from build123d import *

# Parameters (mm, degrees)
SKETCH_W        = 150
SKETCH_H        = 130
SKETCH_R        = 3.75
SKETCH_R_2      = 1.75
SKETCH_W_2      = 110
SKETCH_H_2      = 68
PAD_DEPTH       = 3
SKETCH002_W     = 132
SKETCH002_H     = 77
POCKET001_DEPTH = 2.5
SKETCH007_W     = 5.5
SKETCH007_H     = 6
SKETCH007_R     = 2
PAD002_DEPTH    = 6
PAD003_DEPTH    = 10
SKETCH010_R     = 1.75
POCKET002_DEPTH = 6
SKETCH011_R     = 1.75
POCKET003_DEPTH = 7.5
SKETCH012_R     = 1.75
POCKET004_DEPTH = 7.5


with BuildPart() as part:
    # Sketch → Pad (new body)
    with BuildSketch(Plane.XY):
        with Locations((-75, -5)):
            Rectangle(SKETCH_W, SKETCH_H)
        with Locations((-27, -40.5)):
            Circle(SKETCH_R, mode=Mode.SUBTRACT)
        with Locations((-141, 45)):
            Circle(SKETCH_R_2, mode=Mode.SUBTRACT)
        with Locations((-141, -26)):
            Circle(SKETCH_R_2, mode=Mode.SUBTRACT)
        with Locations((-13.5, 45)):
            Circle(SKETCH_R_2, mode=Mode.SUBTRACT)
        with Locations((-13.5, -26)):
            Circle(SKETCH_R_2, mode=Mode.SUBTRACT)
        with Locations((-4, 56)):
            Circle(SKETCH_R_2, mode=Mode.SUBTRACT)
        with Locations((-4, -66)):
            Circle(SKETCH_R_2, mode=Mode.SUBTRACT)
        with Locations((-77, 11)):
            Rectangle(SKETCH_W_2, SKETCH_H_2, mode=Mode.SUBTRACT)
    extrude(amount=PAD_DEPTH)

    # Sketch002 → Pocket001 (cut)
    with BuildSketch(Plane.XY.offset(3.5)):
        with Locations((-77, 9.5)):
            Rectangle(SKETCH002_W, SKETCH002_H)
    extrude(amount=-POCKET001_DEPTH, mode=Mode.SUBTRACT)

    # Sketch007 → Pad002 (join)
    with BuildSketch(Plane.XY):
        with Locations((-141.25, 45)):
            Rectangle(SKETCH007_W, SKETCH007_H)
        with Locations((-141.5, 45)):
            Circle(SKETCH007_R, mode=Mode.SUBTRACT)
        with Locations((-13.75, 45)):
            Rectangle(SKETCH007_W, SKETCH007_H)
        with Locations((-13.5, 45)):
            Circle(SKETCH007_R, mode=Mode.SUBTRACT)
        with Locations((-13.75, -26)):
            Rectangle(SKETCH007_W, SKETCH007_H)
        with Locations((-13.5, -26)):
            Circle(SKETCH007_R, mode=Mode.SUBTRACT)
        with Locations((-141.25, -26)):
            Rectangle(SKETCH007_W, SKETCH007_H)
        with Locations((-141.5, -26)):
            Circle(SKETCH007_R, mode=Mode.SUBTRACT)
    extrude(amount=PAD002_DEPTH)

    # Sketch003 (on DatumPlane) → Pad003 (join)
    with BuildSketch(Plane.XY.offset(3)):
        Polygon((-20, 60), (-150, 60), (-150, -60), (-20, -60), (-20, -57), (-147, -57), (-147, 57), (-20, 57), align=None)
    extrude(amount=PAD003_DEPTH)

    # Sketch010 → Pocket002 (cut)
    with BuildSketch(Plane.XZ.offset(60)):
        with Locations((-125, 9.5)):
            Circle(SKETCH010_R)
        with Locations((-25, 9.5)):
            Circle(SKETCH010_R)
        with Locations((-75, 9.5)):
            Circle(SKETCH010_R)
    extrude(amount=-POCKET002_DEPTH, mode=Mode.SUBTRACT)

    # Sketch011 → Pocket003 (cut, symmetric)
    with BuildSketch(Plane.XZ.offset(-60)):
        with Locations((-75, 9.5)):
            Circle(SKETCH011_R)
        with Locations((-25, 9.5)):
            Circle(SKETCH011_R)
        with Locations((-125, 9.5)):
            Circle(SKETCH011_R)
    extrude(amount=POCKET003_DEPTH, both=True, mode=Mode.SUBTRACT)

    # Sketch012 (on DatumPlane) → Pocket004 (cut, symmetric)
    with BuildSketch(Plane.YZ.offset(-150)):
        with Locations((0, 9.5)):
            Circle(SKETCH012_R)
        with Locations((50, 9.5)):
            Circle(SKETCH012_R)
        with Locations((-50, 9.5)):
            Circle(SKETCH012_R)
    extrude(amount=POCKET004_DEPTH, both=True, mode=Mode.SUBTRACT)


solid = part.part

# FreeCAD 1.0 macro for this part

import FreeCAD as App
import Part
import Sketcher
from FreeCAD import Vector

doc = App.newDocument("Part")
body = doc.addObject("PartDesign::Body", "Body")

# Sketch on XY plane
sketch1 = doc.addObject("Sketcher::SketchObject", "Sketch")
body.addObject(sketch1)
sketch1.AttachmentSupport = (doc.XY_Plane, [""])
sketch1.MapMode = "FlatFace"
sketch1.addGeometry([
    Part.LineSegment(Vector(-150, 60, 0), Vector(-150, -70, 0)),  # 0
    Part.LineSegment(Vector(-150, -70, 0), Vector(0, -70, 0)),  # 1
    Part.LineSegment(Vector(0, -70, 0), Vector(0, 60, 0)),  # 2
    Part.LineSegment(Vector(0, 60, 0), Vector(-150, 60, 0)),  # 3
    Part.Circle(Vector(-141, -26, 0), Vector(0, 0, 1), 1.8),  # 4
    Part.Circle(Vector(-4, -66, 0), Vector(0, 0, 1), 1.8),  # 5
    Part.Circle(Vector(-27, -40.5, 0), Vector(0, 0, 1), 3.8),  # 6
    Part.Circle(Vector(-13.5, -26, 0), Vector(0, 0, 1), 1.8),  # 7
    Part.LineSegment(Vector(-22, -23, 0), Vector(-132, -23, 0)),  # 8
    Part.LineSegment(Vector(-132, -23, 0), Vector(-132, 45, 0)),  # 9
    Part.LineSegment(Vector(-132, 45, 0), Vector(-22, 45, 0)),  # 10
    Part.LineSegment(Vector(-22, 45, 0), Vector(-22, -23, 0)),  # 11
    Part.Circle(Vector(-141, 45, 0), Vector(0, 0, 1), 1.8),  # 12
    Part.Circle(Vector(-13.5, 45, 0), Vector(0, 0, 1), 1.8),  # 13
    Part.Circle(Vector(-4, 56, 0), Vector(0, 0, 1), 1.8),  # 14
], False)
sketch1.addConstraint([
    Sketcher.Constraint("Coincident", 0, 2, 1, 1),
    Sketcher.Constraint("Coincident", 1, 2, 2, 1),
    Sketcher.Constraint("Coincident", 2, 2, 3, 1),
    Sketcher.Constraint("Coincident", 3, 2, 0, 1),
    Sketcher.Constraint("Coincident", 8, 2, 9, 1),
    Sketcher.Constraint("Coincident", 9, 2, 10, 1),
    Sketcher.Constraint("Coincident", 10, 2, 11, 1),
    Sketcher.Constraint("Coincident", 11, 2, 8, 1),
    Sketcher.Constraint("Vertical", 0),
    Sketcher.Constraint("Horizontal", 1),
    Sketcher.Constraint("Vertical", 2),
    Sketcher.Constraint("Horizontal", 3),
    Sketcher.Constraint("Horizontal", 8),
    Sketcher.Constraint("Vertical", 9),
    Sketcher.Constraint("Horizontal", 10),
    Sketcher.Constraint("Vertical", 11),
    Sketcher.Constraint("Equal", 4, 5),
    Sketcher.Constraint("Equal", 5, 7),
    Sketcher.Constraint("Equal", 7, 12),
    Sketcher.Constraint("Equal", 12, 13),
    Sketcher.Constraint("Equal", 13, 14),
    Sketcher.Constraint("PointOnObject", 1, 2, -2),
    Sketcher.Constraint("Horizontal", 4, 3, 7, 3),
    Sketcher.Constraint("Horizontal", 12, 3, 13, 3),
    Sketcher.Constraint("Horizontal", 13, 3, 9, 2),
    Sketcher.Constraint("Vertical", 4, 3, 12, 3),
    Sketcher.Constraint("Vertical", 7, 3, 13, 3),
    Sketcher.Constraint("Vertical", 5, 3, 14, 3),
    Sketcher.Constraint("Diameter", 4, 3.5),
    Sketcher.Constraint("Diameter", 6, 7.5),
    Sketcher.Constraint("DistanceX", 1, 1, 1, 2, 150.0),
    Sketcher.Constraint("DistanceX", 8, 2, 8, 1, 110.0),
    Sketcher.Constraint("DistanceY", 0, 2, 0, 1, 130.0),
    Sketcher.Constraint("DistanceY", 9, 1, 9, 2, 68.0),
    Sketcher.Constraint("DistanceX", 4, 3, -1, 1, 141.0),
    Sketcher.Constraint("DistanceY", 4, 3, -1, 1, 26.0),
    Sketcher.Constraint("DistanceX", 5, 3, -1, 1, 4.0),
    Sketcher.Constraint("DistanceY", 5, 3, -1, 1, 66.0),
    Sketcher.Constraint("DistanceX", 6, 3, -1, 1, 27.0),
    Sketcher.Constraint("DistanceY", -1, 1, 12, 3, 45.0),
    Sketcher.Constraint("DistanceY", -1, 1, 14, 3, 56.0),
    Sketcher.Constraint("DistanceY", 0, 2, -1, 1, 70.0),
    Sketcher.Constraint("DistanceX", 8, 2, -1, 1, 132.0),
    Sketcher.Constraint("DistanceY", 6, 3, -1, 1, 40.5),
    Sketcher.Constraint("DistanceX", 7, 3, -1, 1, 13.5),
])
pad1 = doc.addObject("PartDesign::Pad", "Pad")
body.addObject(pad1)
pad1.Profile = sketch1
pad1.Length = 3

# Sketch on XY plane
sketch2 = doc.addObject("Sketcher::SketchObject", "Sketch001")
body.addObject(sketch2)
sketch2.AttachmentSupport = (doc.XY_Plane, [""])
sketch2.MapMode = "FlatFace"
sketch2.AttachmentOffset = App.Placement(Vector(0, 0, 3.5), App.Rotation())
sketch2.addGeometry([
    Part.LineSegment(Vector(-143, 48, 0), Vector(-143, -29, 0)),
    Part.LineSegment(Vector(-143, -29, 0), Vector(-11, -29, 0)),
    Part.LineSegment(Vector(-11, -29, 0), Vector(-11, 48, 0)),
    Part.LineSegment(Vector(-11, 48, 0), Vector(-143, 48, 0)),
], False)
sketch2.addConstraint([
    Sketcher.Constraint("Coincident", 0, 2, 1, 1),
    Sketcher.Constraint("Coincident", 1, 2, 2, 1),
    Sketcher.Constraint("Coincident", 2, 2, 3, 1),
    Sketcher.Constraint("Coincident", 3, 2, 0, 1),
    Sketcher.Constraint("Vertical", 0),
    Sketcher.Constraint("Horizontal", 1),
    Sketcher.Constraint("Vertical", 2),
    Sketcher.Constraint("Horizontal", 3),
    Sketcher.Constraint("DistanceX", 1, 1, 1, 2, 132.0),
    Sketcher.Constraint("DistanceY", 0, 2, 0, 1, 77.0),
    Sketcher.Constraint("DistanceX", 0, 2, -1, 1, 143.0),
    Sketcher.Constraint("DistanceY", 0, 2, -1, 1, 29.0),
])
pocket1 = doc.addObject("PartDesign::Pocket", "Pocket")
body.addObject(pocket1)
pocket1.Profile = sketch2
pocket1.Length = 2.5

# Sketch on XY plane
sketch3 = doc.addObject("Sketcher::SketchObject", "Sketch002")
body.addObject(sketch3)
sketch3.AttachmentSupport = (doc.XY_Plane, [""])
sketch3.MapMode = "FlatFace"
sketch3.addGeometry([
    Part.LineSegment(Vector(-144, 48, 0), Vector(-144, 42, 0)),  # 0
    Part.LineSegment(Vector(-144, 42, 0), Vector(-138.5, 42, 0)),  # 1
    Part.LineSegment(Vector(-138.5, 42, 0), Vector(-138.5, 48, 0)),  # 2
    Part.LineSegment(Vector(-138.5, 48, 0), Vector(-144, 48, 0)),  # 3
    Part.Circle(Vector(-141.5, 45, 0), Vector(0, 0, 1), 2),  # 4
    Part.LineSegment(Vector(-16.5, 48, 0), Vector(-16.5, 42, 0)),  # 5
    Part.LineSegment(Vector(-16.5, 42, 0), Vector(-11, 42, 0)),  # 6
    Part.LineSegment(Vector(-11, 42, 0), Vector(-11, 48, 0)),  # 7
    Part.LineSegment(Vector(-11, 48, 0), Vector(-16.5, 48, 0)),  # 8
    Part.Circle(Vector(-13.5, 45, 0), Vector(0, 0, 1), 2),  # 9
    Part.LineSegment(Vector(-16.5, -23, 0), Vector(-16.5, -29, 0)),  # 10
    Part.LineSegment(Vector(-16.5, -29, 0), Vector(-11, -29, 0)),  # 11
    Part.LineSegment(Vector(-11, -29, 0), Vector(-11, -23, 0)),  # 12
    Part.LineSegment(Vector(-11, -23, 0), Vector(-16.5, -23, 0)),  # 13
    Part.Circle(Vector(-13.5, -26, 0), Vector(0, 0, 1), 2),  # 14
    Part.LineSegment(Vector(-144, -23, 0), Vector(-144, -29, 0)),  # 15
    Part.LineSegment(Vector(-144, -29, 0), Vector(-138.5, -29, 0)),  # 16
    Part.LineSegment(Vector(-138.5, -29, 0), Vector(-138.5, -23, 0)),  # 17
    Part.LineSegment(Vector(-138.5, -23, 0), Vector(-144, -23, 0)),  # 18
    Part.Circle(Vector(-141.5, -26, 0), Vector(0, 0, 1), 2),  # 19
], False)
sketch3.addConstraint([
    Sketcher.Constraint("Coincident", 0, 2, 1, 1),
    Sketcher.Constraint("Coincident", 1, 2, 2, 1),
    Sketcher.Constraint("Coincident", 2, 2, 3, 1),
    Sketcher.Constraint("Coincident", 3, 2, 0, 1),
    Sketcher.Constraint("Coincident", 5, 2, 6, 1),
    Sketcher.Constraint("Coincident", 6, 2, 7, 1),
    Sketcher.Constraint("Coincident", 7, 2, 8, 1),
    Sketcher.Constraint("Coincident", 8, 2, 5, 1),
    Sketcher.Constraint("Coincident", 10, 2, 11, 1),
    Sketcher.Constraint("Coincident", 11, 2, 12, 1),
    Sketcher.Constraint("Coincident", 12, 2, 13, 1),
    Sketcher.Constraint("Coincident", 13, 2, 10, 1),
    Sketcher.Constraint("Coincident", 15, 2, 16, 1),
    Sketcher.Constraint("Coincident", 16, 2, 17, 1),
    Sketcher.Constraint("Coincident", 17, 2, 18, 1),
    Sketcher.Constraint("Coincident", 18, 2, 15, 1),
    Sketcher.Constraint("Vertical", 0),
    Sketcher.Constraint("Horizontal", 1),
    Sketcher.Constraint("Vertical", 2),
    Sketcher.Constraint("Horizontal", 3),
    Sketcher.Constraint("Vertical", 5),
    Sketcher.Constraint("Horizontal", 6),
    Sketcher.Constraint("Vertical", 7),
    Sketcher.Constraint("Horizontal", 8),
    Sketcher.Constraint("Vertical", 10),
    Sketcher.Constraint("Horizontal", 11),
    Sketcher.Constraint("Vertical", 12),
    Sketcher.Constraint("Horizontal", 13),
    Sketcher.Constraint("Vertical", 15),
    Sketcher.Constraint("Horizontal", 16),
    Sketcher.Constraint("Vertical", 17),
    Sketcher.Constraint("Horizontal", 18),
    Sketcher.Constraint("Equal", 4, 9),
    Sketcher.Constraint("Equal", 9, 14),
    Sketcher.Constraint("Equal", 14, 19),
    Sketcher.Constraint("Horizontal", 4, 3, 9, 3),
    Sketcher.Constraint("Horizontal", 14, 3, 19, 3),
    Sketcher.Constraint("Horizontal", 1, 2, 5, 2),
    Sketcher.Constraint("Horizontal", 3, 2, 7, 2),
    Sketcher.Constraint("Horizontal", 11, 2, 15, 2),
    Sketcher.Constraint("Horizontal", 13, 2, 17, 2),
    Sketcher.Constraint("Vertical", 9, 3, 14, 3),
    Sketcher.Constraint("Vertical", 4, 3, 19, 3),
    Sketcher.Constraint("Vertical", 8, 2, 10, 2),
    Sketcher.Constraint("Vertical", 7, 2, 11, 2),
    Sketcher.Constraint("Vertical", 3, 2, 15, 2),
    Sketcher.Constraint("Vertical", 2, 2, 16, 2),
    Sketcher.Constraint("Equal", 3, 6),
    Sketcher.Constraint("Equal", 7, 10),
    Sketcher.Constraint("Diameter", 4, 4.0),
    Sketcher.Constraint("DistanceY", 0, 2, 0, 1, 6.0),
    Sketcher.Constraint("DistanceX", 1, 1, 1, 2, 5.5),
    Sketcher.Constraint("DistanceY", -1, 1, 4, 3, 45.0),
    Sketcher.Constraint("DistanceY", 14, 3, -1, 1, 26.0),
    Sketcher.Constraint("DistanceX", 0, 2, -1, 1, 144.0),
    Sketcher.Constraint("DistanceY", -1, 1, 0, 2, 42.0),
    Sketcher.Constraint("DistanceX", 6, 2, -1, 1, 11.0),
    Sketcher.Constraint("DistanceY", 10, 2, -1, 1, 29.0),
    Sketcher.Constraint("DistanceX", 4, 3, 9, 3, 128.0),
    Sketcher.Constraint("DistanceX", 4, 3, 1, 2, 3.0),
])
pad2 = doc.addObject("PartDesign::Pad", "Pad001")
body.addObject(pad2)
pad2.Profile = sketch3
pad2.Length = 6

# Sketch on XY plane
sketch4 = doc.addObject("Sketcher::SketchObject", "Sketch003")
body.addObject(sketch4)
sketch4.AttachmentSupport = (doc.XY_Plane, [""])
sketch4.MapMode = "FlatFace"
sketch4.AttachmentOffset = App.Placement(Vector(0, 0, 3), App.Rotation())
sketch4.addGeometry([
    Part.LineSegment(Vector(-20, 60, 0), Vector(-150, 60, 0)),  # 0
    Part.LineSegment(Vector(-150, 60, 0), Vector(-150, -60, 0)),  # 1
    Part.LineSegment(Vector(-150, -60, 0), Vector(-20, -60, 0)),  # 2
    Part.LineSegment(Vector(-20, -60, 0), Vector(-20, -57, 0)),  # 3
    Part.LineSegment(Vector(-20, -57, 0), Vector(-147, -57, 0)),  # 4
    Part.LineSegment(Vector(-147, -57, 0), Vector(-147, 57, 0)),  # 5
    Part.LineSegment(Vector(-147, 57, 0), Vector(-20, 57, 0)),  # 6
    Part.LineSegment(Vector(-20, 57, 0), Vector(-20, 60, 0)),  # 7
], False)
sketch4.addConstraint([
    Sketcher.Constraint("Coincident", 0, 2, 1, 1),
    Sketcher.Constraint("Coincident", 1, 2, 2, 1),
    Sketcher.Constraint("Coincident", 2, 2, 3, 1),
    Sketcher.Constraint("Coincident", 3, 2, 4, 1),
    Sketcher.Constraint("Coincident", 4, 2, 5, 1),
    Sketcher.Constraint("Coincident", 5, 2, 6, 1),
    Sketcher.Constraint("Coincident", 6, 2, 7, 1),
    Sketcher.Constraint("Coincident", 7, 2, 0, 1),
    Sketcher.Constraint("Horizontal", 0),
    Sketcher.Constraint("Vertical", 1),
    Sketcher.Constraint("Horizontal", 2),
    Sketcher.Constraint("Vertical", 3),
    Sketcher.Constraint("Horizontal", 4),
    Sketcher.Constraint("Vertical", 5),
    Sketcher.Constraint("Horizontal", 6),
    Sketcher.Constraint("Vertical", 7),
    Sketcher.Constraint("Symmetric", 3, 2, 6, 2, -1),
    Sketcher.Constraint("Equal", 3, 7),
    Sketcher.Constraint("DistanceX", 0, 2, 0, 1, 130.0),
    Sketcher.Constraint("DistanceX", 4, 2, 4, 1, 127.0),
    Sketcher.Constraint("DistanceY", 1, 2, 1, 1, 120.0),
    Sketcher.Constraint("DistanceY", 3, 1, 3, 2, 3.0),
    Sketcher.Constraint("DistanceX", 0, 2, -1, 1, 150.0),
])
pad3 = doc.addObject("PartDesign::Pad", "Pad002")
body.addObject(pad3)
pad3.Profile = sketch4
pad3.Length = 10

# Sketch on XZ plane
sketch5 = doc.addObject("Sketcher::SketchObject", "Sketch004")
body.addObject(sketch5)
sketch5.AttachmentSupport = (doc.XZ_Plane, [""])
sketch5.MapMode = "FlatFace"
sketch5.AttachmentOffset = App.Placement(Vector(0, 0, 60), App.Rotation())
sketch5.addGeometry([
    Part.Circle(Vector(-125, 9.5, 0), Vector(0, 0, 1), 1.8),
    Part.Circle(Vector(-25, 9.5, 0), Vector(0, 0, 1), 1.8),
    Part.Circle(Vector(-75, 9.5, 0), Vector(0, 0, 1), 1.8),
], False)
sketch5.addConstraint([
    Sketcher.Constraint("Equal", 0, 1),
    Sketcher.Constraint("Equal", 1, 2),
    Sketcher.Constraint("Horizontal", 0, 3, 1, 3),
    Sketcher.Constraint("Horizontal", 1, 3, 2, 3),
    Sketcher.Constraint("Diameter", 0, 3.5),
    Sketcher.Constraint("DistanceX", 0, 3, -1, 1, 125.0),
    Sketcher.Constraint("DistanceX", 1, 3, -1, 1, 25.0),
    Sketcher.Constraint("DistanceX", 2, 3, -1, 1, 75.0),
    Sketcher.Constraint("DistanceY", -1, 1, 0, 3, 9.5),
])
pocket2 = doc.addObject("PartDesign::Pocket", "Pocket001")
body.addObject(pocket2)
pocket2.Profile = sketch5
pocket2.Length = 6

# Sketch on XZ plane
sketch6 = doc.addObject("Sketcher::SketchObject", "Sketch005")
body.addObject(sketch6)
sketch6.AttachmentSupport = (doc.XZ_Plane, [""])
sketch6.MapMode = "FlatFace"
sketch6.AttachmentOffset = App.Placement(Vector(0, 0, -60), App.Rotation())
sketch6.addGeometry([
    Part.Circle(Vector(-75, 9.5, 0), Vector(0, 0, 1), 1.8),
    Part.Circle(Vector(-25, 9.5, 0), Vector(0, 0, 1), 1.8),
    Part.Circle(Vector(-125, 9.5, 0), Vector(0, 0, 1), 1.8),
], False)
sketch6.addConstraint([
    Sketcher.Constraint("Equal", 0, 1),
    Sketcher.Constraint("Equal", 1, 2),
    Sketcher.Constraint("Horizontal", 0, 3, 1, 3),
    Sketcher.Constraint("Horizontal", 1, 3, 2, 3),
    Sketcher.Constraint("Diameter", 0, 3.5),
    Sketcher.Constraint("DistanceX", 0, 3, -1, 1, 75.0),
    Sketcher.Constraint("DistanceX", 1, 3, -1, 1, 25.0),
    Sketcher.Constraint("DistanceX", 2, 3, -1, 1, 125.0),
    Sketcher.Constraint("DistanceY", -1, 1, 0, 3, 9.5),
])
pocket3 = doc.addObject("PartDesign::Pocket", "Pocket002")
body.addObject(pocket3)
pocket3.Profile = sketch6
pocket3.Length = 15
pocket3.Midplane = True

# Sketch on YZ plane
sketch7 = doc.addObject("Sketcher::SketchObject", "Sketch006")
body.addObject(sketch7)
sketch7.AttachmentSupport = (doc.YZ_Plane, [""])
sketch7.MapMode = "FlatFace"
sketch7.AttachmentOffset = App.Placement(Vector(0, 0, -150), App.Rotation())
sketch7.addGeometry([
    Part.Circle(Vector(0, 9.5, 0), Vector(0, 0, 1), 1.8),
    Part.Circle(Vector(50, 9.5, 0), Vector(0, 0, 1), 1.8),
    Part.Circle(Vector(-50, 9.5, 0), Vector(0, 0, 1), 1.8),
], False)
sketch7.addConstraint([
    Sketcher.Constraint("Equal", 0, 1),
    Sketcher.Constraint("Equal", 1, 2),
    Sketcher.Constraint("Symmetric", 1, 3, 2, 3, -2),
    Sketcher.Constraint("PointOnObject", 0, 3, -2),
    Sketcher.Constraint("Horizontal", 0, 3, 1, 3),
    Sketcher.Constraint("Diameter", 0, 3.5),
    Sketcher.Constraint("DistanceX", -1, 1, 1, 3, 50.0),
    Sketcher.Constraint("DistanceY", -1, 1, 0, 3, 9.5),
])
pocket4 = doc.addObject("PartDesign::Pocket", "Pocket003")
body.addObject(pocket4)
pocket4.Profile = sketch7
pocket4.Length = 15
pocket4.Midplane = True

doc.recompute()
